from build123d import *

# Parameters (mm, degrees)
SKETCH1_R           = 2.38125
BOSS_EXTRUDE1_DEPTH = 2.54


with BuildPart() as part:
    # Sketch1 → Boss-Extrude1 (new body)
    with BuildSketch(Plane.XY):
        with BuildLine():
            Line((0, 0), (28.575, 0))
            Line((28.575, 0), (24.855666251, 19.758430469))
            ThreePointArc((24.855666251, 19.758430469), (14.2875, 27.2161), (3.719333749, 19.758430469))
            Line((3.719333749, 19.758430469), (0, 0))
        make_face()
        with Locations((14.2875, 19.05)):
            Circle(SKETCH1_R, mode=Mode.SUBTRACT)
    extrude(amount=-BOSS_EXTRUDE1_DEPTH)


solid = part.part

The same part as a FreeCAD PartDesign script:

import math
import FreeCAD as App
import Part
import Sketcher

V = App.Vector
Q = App.Units.Quantity

doc = App.newDocument("Part")
params = doc.addObject("Spreadsheet::Sheet", "Params")
for row, (alias, value) in enumerate([
    ("sketch1_diameter", "0.1875 in"),
    ("sketch1_width", "1.125 in"),
    ("pad1_length", "0.1 in"),
], start=1):
    params.set(f"A{row}", alias)
    params.set(f"B{row}", "=" + value)
    params.setAlias(f"B{row}", alias)

body = doc.addObject("PartDesign::Body", "Body")

# Sketch on XY plane
sketch1 = body.newObject("Sketcher::SketchObject", "Sketch")
sketch1.AttachmentSupport = (doc.getObject("XY_Plane"), [""])
sketch1.MapMode = "FlatFace"
sketch1.addGeometry(Part.LineSegment(V(0, 0, 0), V(28.6, 0, 0)), False)
sketch1.addGeometry(Part.LineSegment(V(28.6, 0, 0), V(24.9, 19.8, 0)), False)
sketch1.addGeometry(Part.ArcOfCircle(Part.Circle(V(14.3, 16, 0), V(0, 0, 1), 11.2), math.radians(20), math.radians(160)), False)
sketch1.addGeometry(Part.LineSegment(V(3.7, 19.8, 0), V(0, 0, 0)), False)
sketch1.addGeometry(Part.Circle(V(14.3, 19.1, 0), V(0, 0, 1), 2.4), False)
sketch1.addConstraint(Sketcher.Constraint("Coincident", 0, 2, 1, 1))
sketch1.addConstraint(Sketcher.Constraint("Coincident", 1, 2, 2, 1))
sketch1.addConstraint(Sketcher.Constraint("Coincident", 2, 2, 3, 1))
sketch1.addConstraint(Sketcher.Constraint("Coincident", 3, 2, 0, 1))
sketch1.addConstraint(Sketcher.Constraint("Horizontal", 0))
sketch1.addConstraint(Sketcher.Constraint("Coincident", 3, 2, -1, 1))
sketch1.addConstraint(Sketcher.Constraint("Horizontal", 1, 2, 2, 2))
sketch1.addConstraint(Sketcher.Constraint("Vertical", 2, 3, 4, 3))
sketch1.addConstraint(Sketcher.Constraint("Equal", 1, 3))
sketch1.addConstraint(Sketcher.Constraint("Diameter", 4, Q("0.1875 in")))
sketch1.addConstraint(Sketcher.Constraint("DistanceX", 0, 1, 0, 2, Q("1.125 in")))
sketch1.addConstraint(Sketcher.Constraint("DistanceY", -1, 1, 4, 3, Q("0.75 in")))
sketch1.addConstraint(Sketcher.Constraint("Radius", 2, 11.21684))
sketch1.addConstraint(Sketcher.Constraint("DistanceY", -1, 1, 2, 3, 15.99926))
sketch1.addConstraint(Sketcher.Constraint("DistanceY", -1, 1, 1, 2, 19.75843))
sketch1.setExpression("Constraints[9]", "Params.sketch1_diameter")
sketch1.setExpression("Constraints[10]", "Params.sketch1_width")
pad1 = body.newObject("PartDesign::Pad", "Pad")
pad1.Profile = sketch1
pad1.setExpression("Length", "Params.pad1_length")
pad1.Reversed = True

doc.recompute()
